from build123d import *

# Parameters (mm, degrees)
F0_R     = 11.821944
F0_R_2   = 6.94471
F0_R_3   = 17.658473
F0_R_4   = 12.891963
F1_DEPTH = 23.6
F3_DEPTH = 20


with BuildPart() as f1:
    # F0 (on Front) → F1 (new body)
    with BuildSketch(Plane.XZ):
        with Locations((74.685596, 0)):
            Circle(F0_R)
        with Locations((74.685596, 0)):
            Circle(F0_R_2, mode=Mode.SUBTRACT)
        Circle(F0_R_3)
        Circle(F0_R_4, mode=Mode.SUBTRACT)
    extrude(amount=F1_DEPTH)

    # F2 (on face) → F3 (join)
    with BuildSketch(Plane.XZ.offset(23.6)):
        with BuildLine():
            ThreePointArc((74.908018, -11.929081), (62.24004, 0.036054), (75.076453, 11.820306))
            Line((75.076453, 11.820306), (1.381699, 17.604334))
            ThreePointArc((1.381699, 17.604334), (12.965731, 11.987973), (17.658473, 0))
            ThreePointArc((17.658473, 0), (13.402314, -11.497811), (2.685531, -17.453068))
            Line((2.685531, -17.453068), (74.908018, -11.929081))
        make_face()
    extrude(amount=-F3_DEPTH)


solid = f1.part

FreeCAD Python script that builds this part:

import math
import FreeCAD as App
import Part
import Sketcher
Q = App.Units.Quantity

doc = App.newDocument("Part")
body = doc.addObject("PartDesign::Body", "Body")
body.AllowCompound = True

sketch1 = doc.addObject("Sketcher::SketchObject", "Sketch")
body.addObject(sketch1)
sketch1.AttachmentSupport = (doc.XZ_Plane, [""])
sketch1.MapMode = "FlatFace"
sketch1.addGeometry([
    Part.Circle(App.Vector(75, 0, 0), App.Vector(0, 0, 1), 12),
    Part.Circle(App.Vector(75, 0, 0), App.Vector(0, 0, 1), 7),
    Part.Circle(App.Vector(0, 0, 0), App.Vector(0, 0, 1), 18),
    Part.Circle(App.Vector(0, 0, 0), App.Vector(0, 0, 1), 13),
], False)
sketch1.addConstraint([
    Sketcher.Constraint("Coincident", 2, 3, -1, 1),
    Sketcher.Constraint("Coincident", 3, 3, -1, 1),
    Sketcher.Constraint("Coincident", 1, 3, 0, 3),
    Sketcher.Constraint("PointOnObject", 0, 3, -1),
    Sketcher.Constraint("Diameter", 0, Q("23.643888 mm")),
    Sketcher.Constraint("Diameter", 1, Q("13.88942 mm")),
    Sketcher.Constraint("Diameter", 2, Q("35.316946 mm")),
    Sketcher.Constraint("Diameter", 3, Q("25.783926 mm")),
    Sketcher.Constraint("DistanceX", -1, 1, 0, 3, Q("74.685596 mm")),
])
pad1 = doc.addObject("PartDesign::Pad", "Pad")
body.addObject(pad1)
pad1.Profile = sketch1
pad1.Length = 23.6

sketch2 = doc.addObject("Sketcher::SketchObject", "Sketch001")
body.addObject(sketch2)
sketch2.AttachmentSupport = (doc.XZ_Plane, [""])
sketch2.MapMode = "FlatFace"
sketch2.AttachmentOffset = App.Placement(App.Vector(0, 0, 23.6), App.Rotation())
sketch2.addGeometry([
    Part.ArcOfCircle(Part.Circle(App.Vector(74, 0, 0), App.Vector(0, 0, 1), 12), math.radians(86), math.radians(274)),
    Part.LineSegment(App.Vector(75, 12, 0), App.Vector(1, 18, 0)),
    Part.ArcOfCircle(Part.Circle(App.Vector(0, 0, 0), App.Vector(0, 0, 1), 18), math.radians(0), math.radians(86)),
    Part.ArcOfCircle(Part.Circle(App.Vector(0, 0, 0), App.Vector(0, 0, 1), 18), math.radians(-81), math.radians(0)),
    Part.LineSegment(App.Vector(3, -17, 0), App.Vector(75, -12, 0)),
], False)
sketch2.addConstraint([
    Sketcher.Constraint("Tangent", 0, 1, 1, 1),
    Sketcher.Constraint("Tangent", 1, 2, 2, 2),
    Sketcher.Constraint("Tangent", 2, 1, 3, 2),
    Sketcher.Constraint("Coincident", 3, 1, 4, 1),
    Sketcher.Constraint("Coincident", 4, 2, 0, 2),
    Sketcher.Constraint("Coincident", 2, 3, -1, 1),
    Sketcher.Constraint("Equal", 2, 3),
    Sketcher.Constraint("PointOnObject", 2, 1, -1),
    Sketcher.Constraint("Radius", 3, Q("17.658472 mm")),
    Sketcher.Constraint("Radius", 0, Q("11.905184 mm")),
    Sketcher.Constraint("DistanceX", -1, 1, 1, 2, Q("1.381699 mm")),
    Sketcher.Constraint("DistanceY", 3, 1, 1, 2, Q("35.057402 mm")),
    Sketcher.Constraint("Distance", 1, Q("73.921389 mm")),
    Sketcher.Constraint("Distance", 4, Q("72.433432 mm")),
])
pad2 = doc.addObject("PartDesign::Pad", "Pad001")
body.addObject(pad2)
pad2.Profile = sketch2
pad2.Length = 20
pad2.Reversed = True

doc.recompute()
